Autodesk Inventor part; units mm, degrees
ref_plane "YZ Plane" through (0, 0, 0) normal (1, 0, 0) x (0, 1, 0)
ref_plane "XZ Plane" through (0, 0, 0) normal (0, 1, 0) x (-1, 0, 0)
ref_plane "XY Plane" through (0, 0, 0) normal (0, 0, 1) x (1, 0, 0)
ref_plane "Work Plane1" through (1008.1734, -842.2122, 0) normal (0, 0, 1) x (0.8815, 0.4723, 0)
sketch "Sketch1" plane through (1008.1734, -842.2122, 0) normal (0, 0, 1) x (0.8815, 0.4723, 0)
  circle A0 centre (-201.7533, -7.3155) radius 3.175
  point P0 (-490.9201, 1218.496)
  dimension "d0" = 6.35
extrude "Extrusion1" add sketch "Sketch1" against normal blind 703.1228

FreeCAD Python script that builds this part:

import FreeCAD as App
import Part
import Sketcher

V = App.Vector
Q = App.Units.Quantity

doc = App.newDocument("Part")
body = doc.addObject("PartDesign::Body", "Body")

# Sketch on XY plane
sketch1 = doc.addObject("Sketcher::SketchObject", "Sketch")
body.addObject(sketch1)
sketch1.AttachmentSupport = (doc.XY_Plane, [""])
sketch1.MapMode = "FlatFace"
sketch1.addGeometry(Part.Circle(V(833.8, -943.9, 0), V(0, 0, 1), 3.2), False)
sketch1.addConstraint([
    Sketcher.Constraint("Diameter", 0, Q("0.25 in")),
    Sketcher.Constraint("DistanceX", -1, 1, 0, 3, 833.7925),
    Sketcher.Constraint("DistanceY", 0, 3, -1, 1, 943.9433),
])
pad1 = doc.addObject("PartDesign::Pad", "Pad")
body.addObject(pad1)
pad1.Profile = sketch1
pad1.Length = Q("27.682 in")
pad1.Reversed = True

doc.recompute()
